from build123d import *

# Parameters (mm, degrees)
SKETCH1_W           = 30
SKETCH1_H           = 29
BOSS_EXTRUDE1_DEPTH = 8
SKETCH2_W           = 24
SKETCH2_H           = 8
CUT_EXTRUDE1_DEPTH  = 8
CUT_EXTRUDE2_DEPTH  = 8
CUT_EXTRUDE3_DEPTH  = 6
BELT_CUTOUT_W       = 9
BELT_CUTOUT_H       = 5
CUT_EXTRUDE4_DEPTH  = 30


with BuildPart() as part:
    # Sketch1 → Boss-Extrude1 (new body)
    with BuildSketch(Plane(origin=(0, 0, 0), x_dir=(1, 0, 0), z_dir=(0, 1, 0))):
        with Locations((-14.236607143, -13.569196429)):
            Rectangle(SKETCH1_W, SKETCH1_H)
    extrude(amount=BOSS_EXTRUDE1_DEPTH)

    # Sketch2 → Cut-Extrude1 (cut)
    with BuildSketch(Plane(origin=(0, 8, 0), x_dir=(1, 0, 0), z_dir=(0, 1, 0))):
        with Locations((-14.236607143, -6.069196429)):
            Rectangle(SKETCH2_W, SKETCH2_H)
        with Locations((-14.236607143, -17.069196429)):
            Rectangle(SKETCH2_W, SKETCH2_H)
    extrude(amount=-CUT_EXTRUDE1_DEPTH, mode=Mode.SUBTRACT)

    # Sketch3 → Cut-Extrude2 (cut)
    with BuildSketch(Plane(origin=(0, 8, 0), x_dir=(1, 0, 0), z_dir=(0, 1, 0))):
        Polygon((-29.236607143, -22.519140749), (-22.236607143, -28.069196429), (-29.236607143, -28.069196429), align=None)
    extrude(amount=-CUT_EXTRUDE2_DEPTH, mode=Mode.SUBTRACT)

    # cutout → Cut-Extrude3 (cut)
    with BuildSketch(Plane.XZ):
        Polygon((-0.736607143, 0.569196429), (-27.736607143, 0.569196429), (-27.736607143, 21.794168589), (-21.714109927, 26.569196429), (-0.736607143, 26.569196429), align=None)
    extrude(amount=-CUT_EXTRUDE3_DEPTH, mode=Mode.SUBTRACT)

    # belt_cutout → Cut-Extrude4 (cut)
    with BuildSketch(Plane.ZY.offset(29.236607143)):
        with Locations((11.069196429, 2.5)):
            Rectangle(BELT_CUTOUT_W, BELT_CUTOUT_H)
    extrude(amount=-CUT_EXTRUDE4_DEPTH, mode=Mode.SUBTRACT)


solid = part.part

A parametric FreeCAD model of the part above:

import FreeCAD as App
import Part
import Sketcher
from FreeCAD import Vector

doc = App.newDocument("Part")
body = doc.addObject("PartDesign::Body", "Body")

sketch1 = body.newObject("Sketcher::SketchObject", "Sketch")
sketch1.AttachmentSupport = (doc.getObject("XZ_Plane"), [""])
sketch1.MapMode = "FlatFace"
sketch1.addGeometry([
    Part.LineSegment(Vector(-29, -1, 0), Vector(-29, 28, 0)),
    Part.LineSegment(Vector(-29, 28, 0), Vector(1, 28, 0)),
    Part.LineSegment(Vector(1, 28, 0), Vector(1, -1, 0)),
    Part.LineSegment(Vector(1, -1, 0), Vector(-29, -1, 0)),
], False)
sketch1.addConstraint([
    Sketcher.Constraint("Coincident", 0, 2, 1, 1),
    Sketcher.Constraint("Coincident", 1, 2, 2, 1),
    Sketcher.Constraint("Coincident", 2, 2, 3, 1),
    Sketcher.Constraint("Coincident", 3, 2, 0, 1),
    Sketcher.Constraint("Vertical", 0),
    Sketcher.Constraint("Horizontal", 1),
    Sketcher.Constraint("Vertical", 2),
    Sketcher.Constraint("Horizontal", 3),
    Sketcher.Constraint("DistanceX", 1, 1, 1, 2, 30.0),
    Sketcher.Constraint("DistanceY", 0, 1, 0, 2, 29.0),
    Sketcher.Constraint("DistanceX", 0, 2, -1, 1, 29.236607),
    Sketcher.Constraint("DistanceY", -1, 1, 0, 2, 28.069196),
])
pad1 = body.newObject("PartDesign::Pad", "Pad")
pad1.Profile = sketch1
pad1.Length = 8
pad1.Reversed = True

sketch2 = body.newObject("Sketcher::SketchObject", "Sketch001")
sketch2.AttachmentSupport = (doc.getObject("XZ_Plane"), [""])
sketch2.MapMode = "FlatFace"
sketch2.AttachmentOffset = App.Placement(Vector(0, 0, -8), App.Rotation())
sketch2.addGeometry([
    Part.LineSegment(Vector(-26, 2, 0), Vector(-26, 10, 0)),
    Part.LineSegment(Vector(-26, 10, 0), Vector(-2, 10, 0)),
    Part.LineSegment(Vector(-2, 10, 0), Vector(-2, 2, 0)),
    Part.LineSegment(Vector(-2, 2, 0), Vector(-26, 2, 0)),
    Part.LineSegment(Vector(-26, 13, 0), Vector(-26, 21, 0)),
    Part.LineSegment(Vector(-26, 21, 0), Vector(-2, 21, 0)),
    Part.LineSegment(Vector(-2, 21, 0), Vector(-2, 13, 0)),
    Part.LineSegment(Vector(-2, 13, 0), Vector(-26, 13, 0)),
], False)
sketch2.addConstraint([
    Sketcher.Constraint("Coincident", 0, 2, 1, 1),
    Sketcher.Constraint("Coincident", 1, 2, 2, 1),
    Sketcher.Constraint("Coincident", 2, 2, 3, 1),
    Sketcher.Constraint("Coincident", 3, 2, 0, 1),
    Sketcher.Constraint("Coincident", 4, 2, 5, 1),
    Sketcher.Constraint("Coincident", 5, 2, 6, 1),
    Sketcher.Constraint("Coincident", 6, 2, 7, 1),
    Sketcher.Constraint("Coincident", 7, 2, 4, 1),
    Sketcher.Constraint("Vertical", 0),
    Sketcher.Constraint("Horizontal", 1),
    Sketcher.Constraint("Vertical", 2),
    Sketcher.Constraint("Horizontal", 3),
    Sketcher.Constraint("Vertical", 4),
    Sketcher.Constraint("Horizontal", 5),
    Sketcher.Constraint("Vertical", 6),
    Sketcher.Constraint("Horizontal", 7),
    Sketcher.Constraint("Vertical", 3, 2, 4, 2),
    Sketcher.Constraint("Vertical", 2, 2, 5, 2),
    Sketcher.Constraint("Equal", 2, 4),
    Sketcher.Constraint("DistanceX", 1, 1, 1, 2, 24.0),
    Sketcher.Constraint("DistanceY", 0, 1, 0, 2, 8.0),
    Sketcher.Constraint("DistanceY", 0, 2, 4, 2, 11.0),
    Sketcher.Constraint("DistanceX", 0, 2, -1, 1, 26.236607),
    Sketcher.Constraint("DistanceY", -1, 1, 0, 2, 10.069196),
])
pocket1 = body.newObject("PartDesign::Pocket", "Pocket")
pocket1.Profile = sketch2
pocket1.Length = 8
pocket1.Reversed = True

sketch3 = body.newObject("Sketcher::SketchObject", "Sketch002")
sketch3.AttachmentSupport = (doc.getObject("XZ_Plane"), [""])
sketch3.MapMode = "FlatFace"
sketch3.AttachmentOffset = App.Placement(Vector(0, 0, -8), App.Rotation())
sketch3.addGeometry([
    Part.LineSegment(Vector(-22, 28, 0), Vector(-29, 23, 0)),
    Part.LineSegment(Vector(-29, 23, 0), Vector(-29, 28, 0)),
    Part.LineSegment(Vector(-29, 28, 0), Vector(-22, 28, 0)),
], False)
sketch3.addConstraint([
    Sketcher.Constraint("Coincident", 0, 2, 1, 1),
    Sketcher.Constraint("Coincident", 1, 2, 2, 1),
    Sketcher.Constraint("Coincident", 2, 2, 0, 1),
    Sketcher.Constraint("Vertical", 1),
    Sketcher.Constraint("Horizontal", 2),
    Sketcher.Constraint("DistanceX", 2, 1, 2, 2, 7.0),
    Sketcher.Constraint("Distance", 0, 8.933259),
    Sketcher.Constraint("DistanceY", -1, 1, 0, 2, 22.519141),
    Sketcher.Constraint("DistanceX", 0, 2, -1, 1, 29.236607),
])
pocket2 = body.newObject("PartDesign::Pocket", "Pocket001")
pocket2.Profile = sketch3
pocket2.Length = 8
pocket2.Reversed = True

sketch4 = body.newObject("Sketcher::SketchObject", "Sketch003")
sketch4.AttachmentSupport = (doc.getObject("XZ_Plane"), [""])
sketch4.MapMode = "FlatFace"
sketch4.addGeometry([
    Part.LineSegment(Vector(-28, 1, 0), Vector(-1, 1, 0)),
    Part.LineSegment(Vector(-1, 1, 0), Vector(-1, 27, 0)),
    Part.LineSegment(Vector(-1, 27, 0), Vector(-22, 27, 0)),
    Part.LineSegment(Vector(-22, 27, 0), Vector(-28, 22, 0)),
    Part.LineSegment(Vector(-28, 22, 0), Vector(-28, 1, 0)),
], False)
sketch4.addConstraint([
    Sketcher.Constraint("Coincident", 0, 2, 1, 1),
    Sketcher.Constraint("Coincident", 1, 2, 2, 1),
    Sketcher.Constraint("Coincident", 2, 2, 3, 1),
    Sketcher.Constraint("Coincident", 3, 2, 4, 1),
    Sketcher.Constraint("Coincident", 4, 2, 0, 1),
    Sketcher.Constraint("Horizontal", 0),
    Sketcher.Constraint("Vertical", 1),
    Sketcher.Constraint("Horizontal", 2),
    Sketcher.Constraint("Vertical", 4),
    Sketcher.Constraint("DistanceX", 0, 1, 0, 2, 27.0),
    Sketcher.Constraint("DistanceY", 1, 1, 1, 2, 26.0),
    Sketcher.Constraint("Distance", 3, 7.68579),
    Sketcher.Constraint("DistanceX", 2, 2, 2, 1, 20.977503),
    Sketcher.Constraint("DistanceX", 2, 2, -1, 1, 21.71411),
    Sketcher.Constraint("DistanceY", -1, 1, 3, 2, 21.794169),
])
pocket3 = body.newObject("PartDesign::Pocket", "Pocket002")
pocket3.Profile = sketch4
pocket3.Length = 6

sketch5 = body.newObject("Sketcher::SketchObject", "Sketch004")
sketch5.AttachmentSupport = (doc.getObject("YZ_Plane"), [""])
sketch5.MapMode = "FlatFace"
sketch5.AttachmentOffset = App.Placement(Vector(0, 0, -29.236607), App.Rotation())
sketch5.addGeometry([
    Part.LineSegment(Vector(5, 7, 0), Vector(0, 7, 0)),
    Part.LineSegment(Vector(0, 7, 0), Vector(0, 16, 0)),
    Part.LineSegment(Vector(0, 16, 0), Vector(5, 16, 0)),
    Part.LineSegment(Vector(5, 16, 0), Vector(5, 7, 0)),
], False)
sketch5.addConstraint([
    Sketcher.Constraint("Coincident", 0, 2, 1, 1),
    Sketcher.Constraint("Coincident", 1, 2, 2, 1),
    Sketcher.Constraint("Coincident", 2, 2, 3, 1),
    Sketcher.Constraint("Coincident", 3, 2, 0, 1),
    Sketcher.Constraint("Horizontal", 0),
    Sketcher.Constraint("Vertical", 1),
    Sketcher.Constraint("Horizontal", 2),
    Sketcher.Constraint("Vertical", 3),
    Sketcher.Constraint("PointOnObject", 0, 2, -2),
    Sketcher.Constraint("DistanceX", 0, 2, 0, 1, 5.0),
    Sketcher.Constraint("DistanceY", 1, 1, 1, 2, 9.0),
    Sketcher.Constraint("DistanceY", -1, 1, 0, 2, 6.569196),
])
pocket4 = body.newObject("PartDesign::Pocket", "Pocket003")
pocket4.Profile = sketch5
pocket4.Length = 30
pocket4.Reversed = True

doc.recompute()
